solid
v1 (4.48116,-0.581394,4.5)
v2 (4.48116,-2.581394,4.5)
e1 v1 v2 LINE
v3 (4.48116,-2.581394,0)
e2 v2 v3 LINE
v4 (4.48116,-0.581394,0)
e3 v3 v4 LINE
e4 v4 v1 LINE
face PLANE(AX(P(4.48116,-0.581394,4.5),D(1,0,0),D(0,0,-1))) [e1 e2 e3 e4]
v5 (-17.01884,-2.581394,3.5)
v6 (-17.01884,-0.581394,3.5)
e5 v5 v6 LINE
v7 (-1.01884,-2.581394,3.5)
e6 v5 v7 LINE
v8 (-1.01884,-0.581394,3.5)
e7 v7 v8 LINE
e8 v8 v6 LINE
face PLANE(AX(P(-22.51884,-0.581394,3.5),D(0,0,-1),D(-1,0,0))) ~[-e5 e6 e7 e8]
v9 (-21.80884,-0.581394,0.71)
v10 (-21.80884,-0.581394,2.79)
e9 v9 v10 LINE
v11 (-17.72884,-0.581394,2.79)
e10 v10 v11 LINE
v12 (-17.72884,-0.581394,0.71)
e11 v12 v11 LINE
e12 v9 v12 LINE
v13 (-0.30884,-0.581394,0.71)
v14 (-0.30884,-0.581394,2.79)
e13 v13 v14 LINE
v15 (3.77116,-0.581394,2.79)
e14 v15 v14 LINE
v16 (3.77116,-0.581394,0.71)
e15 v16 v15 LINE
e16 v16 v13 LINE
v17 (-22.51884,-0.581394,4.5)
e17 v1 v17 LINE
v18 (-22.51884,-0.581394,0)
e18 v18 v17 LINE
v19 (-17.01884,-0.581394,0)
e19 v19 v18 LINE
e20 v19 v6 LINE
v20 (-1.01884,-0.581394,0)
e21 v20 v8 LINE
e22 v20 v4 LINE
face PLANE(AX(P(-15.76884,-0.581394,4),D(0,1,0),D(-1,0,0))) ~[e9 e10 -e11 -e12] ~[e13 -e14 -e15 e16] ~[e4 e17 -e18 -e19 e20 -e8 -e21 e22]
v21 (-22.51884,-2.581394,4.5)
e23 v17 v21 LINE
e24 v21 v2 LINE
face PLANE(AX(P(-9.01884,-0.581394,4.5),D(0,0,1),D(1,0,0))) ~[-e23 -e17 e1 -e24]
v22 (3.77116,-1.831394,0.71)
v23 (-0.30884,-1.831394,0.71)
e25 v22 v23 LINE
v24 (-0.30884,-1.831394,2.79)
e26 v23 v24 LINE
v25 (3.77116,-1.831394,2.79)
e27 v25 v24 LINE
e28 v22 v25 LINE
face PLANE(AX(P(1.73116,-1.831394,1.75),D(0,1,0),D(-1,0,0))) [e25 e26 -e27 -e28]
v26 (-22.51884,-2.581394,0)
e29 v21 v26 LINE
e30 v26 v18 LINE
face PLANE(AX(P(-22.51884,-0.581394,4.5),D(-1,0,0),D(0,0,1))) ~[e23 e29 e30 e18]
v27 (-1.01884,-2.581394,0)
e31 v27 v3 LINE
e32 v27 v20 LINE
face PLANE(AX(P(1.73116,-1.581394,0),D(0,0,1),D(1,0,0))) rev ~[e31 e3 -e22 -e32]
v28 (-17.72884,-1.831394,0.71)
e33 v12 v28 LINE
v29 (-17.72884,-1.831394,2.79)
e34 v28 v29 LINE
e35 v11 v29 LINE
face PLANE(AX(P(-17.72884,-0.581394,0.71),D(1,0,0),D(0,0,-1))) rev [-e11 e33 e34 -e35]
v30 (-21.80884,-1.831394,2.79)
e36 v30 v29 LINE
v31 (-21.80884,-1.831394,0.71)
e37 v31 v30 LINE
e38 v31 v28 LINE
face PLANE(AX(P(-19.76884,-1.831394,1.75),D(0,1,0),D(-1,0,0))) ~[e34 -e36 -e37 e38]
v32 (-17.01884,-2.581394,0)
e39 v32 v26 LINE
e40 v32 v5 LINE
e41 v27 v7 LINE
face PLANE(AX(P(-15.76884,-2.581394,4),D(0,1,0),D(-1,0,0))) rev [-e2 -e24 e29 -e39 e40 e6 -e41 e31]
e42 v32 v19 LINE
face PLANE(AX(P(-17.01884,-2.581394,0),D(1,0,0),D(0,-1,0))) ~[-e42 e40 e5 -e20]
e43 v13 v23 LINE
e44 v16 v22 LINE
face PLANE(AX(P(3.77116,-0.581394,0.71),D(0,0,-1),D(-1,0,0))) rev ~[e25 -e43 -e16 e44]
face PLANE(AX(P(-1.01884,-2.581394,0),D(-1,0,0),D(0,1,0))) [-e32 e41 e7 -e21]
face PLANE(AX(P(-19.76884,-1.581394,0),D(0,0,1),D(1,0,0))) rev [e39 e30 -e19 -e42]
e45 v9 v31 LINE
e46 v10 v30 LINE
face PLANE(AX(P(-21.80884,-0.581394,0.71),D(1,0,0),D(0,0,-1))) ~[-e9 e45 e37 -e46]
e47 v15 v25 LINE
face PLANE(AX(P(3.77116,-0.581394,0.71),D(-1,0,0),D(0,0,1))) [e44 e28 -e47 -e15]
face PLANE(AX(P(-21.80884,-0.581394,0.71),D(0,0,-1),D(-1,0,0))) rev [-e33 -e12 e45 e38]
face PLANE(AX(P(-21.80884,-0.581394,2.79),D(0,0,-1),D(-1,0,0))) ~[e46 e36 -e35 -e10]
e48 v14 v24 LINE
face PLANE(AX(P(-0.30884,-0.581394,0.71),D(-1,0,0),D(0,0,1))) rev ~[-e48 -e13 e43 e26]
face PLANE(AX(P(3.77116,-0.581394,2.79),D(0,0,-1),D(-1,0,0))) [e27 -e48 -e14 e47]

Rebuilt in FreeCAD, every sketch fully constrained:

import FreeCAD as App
import Part
import Sketcher

V = App.Vector
Q = App.Units.Quantity


def add_polygon(sketch, points):
    """Adds a closed chain of lines whose ends are joined by coincident constraints."""
    first, n = sketch.GeometryCount, len(points)
    for a, b in zip(points, points[1:] + points[:1]):
        sketch.addGeometry(Part.LineSegment(App.Vector(*a, 0), App.Vector(*b, 0)), False)
    for i in range(n):
        sketch.addConstraint(Sketcher.Constraint("Coincident", first + i, 2, first + (i + 1) % n, 1))

doc = App.newDocument("Part")
body = doc.addObject("PartDesign::Body", "Body")

# Sketch on XY plane
sketch1 = doc.addObject("Sketcher::SketchObject", "Sketch")
body.addObject(sketch1)
sketch1.AttachmentSupport = (doc.XY_Plane, [""])
sketch1.MapMode = "FlatFace"
add_polygon(sketch1, [(-1, -0.6), (-1, -2.6), (4.5, -2.6), (4.5, -0.6)])  # lines 0-3
sketch1.addConstraint(Sketcher.Constraint("Vertical", 0))
sketch1.addConstraint(Sketcher.Constraint("Horizontal", 1))
sketch1.addConstraint(Sketcher.Constraint("Vertical", 2))
sketch1.addConstraint(Sketcher.Constraint("Horizontal", 3))
sketch1.addConstraint(Sketcher.Constraint("DistanceY", 0, 2, 0, 1, Q("2 mm")))
sketch1.addConstraint(Sketcher.Constraint("DistanceX", 1, 1, 1, 2, Q("5.5 mm")))
sketch1.addConstraint(Sketcher.Constraint("DistanceX", 0, 2, -1, 1, Q("1.01884 mm")))
sketch1.addConstraint(Sketcher.Constraint("DistanceY", 0, 2, -1, 1, Q("2.581394 mm")))
pad1 = doc.addObject("PartDesign::Pad", "Pad")
body.addObject(pad1)
pad1.Profile = sketch1
pad1.Length = 3.5

# Sketch on XZ plane
sketch2 = doc.addObject("Sketcher::SketchObject", "Sketch001")
body.addObject(sketch2)
sketch2.AttachmentSupport = (doc.XZ_Plane, [""])
sketch2.MapMode = "FlatFace"
sketch2.AttachmentOffset = App.Placement(V(0, 0, 0.581394), App.Rotation())
add_polygon(sketch2, [(3.8, 2.8), (3.8, 0.7), (-0.3, 0.7), (-0.3, 2.8)])  # lines 0-3
sketch2.addConstraint(Sketcher.Constraint("Vertical", 0))
sketch2.addConstraint(Sketcher.Constraint("Horizontal", 1))
sketch2.addConstraint(Sketcher.Constraint("Vertical", 2))
sketch2.addConstraint(Sketcher.Constraint("Horizontal", 3))
sketch2.addConstraint(Sketcher.Constraint("DistanceX", 1, 2, 1, 1, Q("4.08 mm")))
sketch2.addConstraint(Sketcher.Constraint("DistanceY", 0, 2, 0, 1, Q("2.08 mm")))
sketch2.addConstraint(Sketcher.Constraint("DistanceY", -1, 1, 0, 2, Q("0.71 mm")))
sketch2.addConstraint(Sketcher.Constraint("DistanceX", -1, 1, 0, 2, Q("3.77116 mm")))
pocket1 = doc.addObject("PartDesign::Pocket", "Pocket")
body.addObject(pocket1)
pocket1.Profile = sketch2
pocket1.Length = 1.25
pocket1.Reversed = True

# Sketch on XZ plane
sketch3 = doc.addObject("Sketcher::SketchObject", "Sketch002")
body.addObject(sketch3)
sketch3.AttachmentSupport = (doc.XZ_Plane, [""])
sketch3.MapMode = "FlatFace"
sketch3.AttachmentOffset = App.Placement(V(0, 0, 0.581394), App.Rotation())
add_polygon(sketch3, [(4.5, 4.5), (4.5, 3.5), (-9, 3.5), (-9, 4.5)])  # lines 0-3
sketch3.addConstraint(Sketcher.Constraint("Vertical", 0))
sketch3.addConstraint(Sketcher.Constraint("Horizontal", 1))
sketch3.addConstraint(Sketcher.Constraint("Vertical", 2))
sketch3.addConstraint(Sketcher.Constraint("Horizontal", 3))
sketch3.addConstraint(Sketcher.Constraint("DistanceY", 0, 2, 0, 1, Q("1 mm")))
sketch3.addConstraint(Sketcher.Constraint("DistanceX", 1, 2, 1, 1, Q("13.5 mm")))
sketch3.addConstraint(Sketcher.Constraint("DistanceY", -1, 1, 0, 2, Q("3.5 mm")))
sketch3.addConstraint(Sketcher.Constraint("DistanceX", -1, 1, 0, 2, Q("4.48116 mm")))
pad2 = doc.addObject("PartDesign::Pad", "Pad001")
body.addObject(pad2)
pad2.Profile = sketch3
pad2.Length = 2
body2 = doc.addObject("PartDesign::Body", "Body001")
doc.recompute()

body2.BaseFeature = body
doc.recompute()

mirroring = doc.addObject("Part::Mirroring", "Mirroring")
mirroring.Source = body
mirroring.Base = V(-9.01884, -1.581394, 4)
mirroring.Normal = V(-1, 0, 0)
body3 = doc.addObject("PartDesign::Body", "Body002")
body3.BaseFeature = mirroring
boolean = doc.addObject("PartDesign::Boolean", "Boolean")
body2.addObject(boolean)
boolean.Type = "Fuse"
boolean.addObjects([body3])
doc.recompute()
mirroring.Visibility = False

doc.recompute()
